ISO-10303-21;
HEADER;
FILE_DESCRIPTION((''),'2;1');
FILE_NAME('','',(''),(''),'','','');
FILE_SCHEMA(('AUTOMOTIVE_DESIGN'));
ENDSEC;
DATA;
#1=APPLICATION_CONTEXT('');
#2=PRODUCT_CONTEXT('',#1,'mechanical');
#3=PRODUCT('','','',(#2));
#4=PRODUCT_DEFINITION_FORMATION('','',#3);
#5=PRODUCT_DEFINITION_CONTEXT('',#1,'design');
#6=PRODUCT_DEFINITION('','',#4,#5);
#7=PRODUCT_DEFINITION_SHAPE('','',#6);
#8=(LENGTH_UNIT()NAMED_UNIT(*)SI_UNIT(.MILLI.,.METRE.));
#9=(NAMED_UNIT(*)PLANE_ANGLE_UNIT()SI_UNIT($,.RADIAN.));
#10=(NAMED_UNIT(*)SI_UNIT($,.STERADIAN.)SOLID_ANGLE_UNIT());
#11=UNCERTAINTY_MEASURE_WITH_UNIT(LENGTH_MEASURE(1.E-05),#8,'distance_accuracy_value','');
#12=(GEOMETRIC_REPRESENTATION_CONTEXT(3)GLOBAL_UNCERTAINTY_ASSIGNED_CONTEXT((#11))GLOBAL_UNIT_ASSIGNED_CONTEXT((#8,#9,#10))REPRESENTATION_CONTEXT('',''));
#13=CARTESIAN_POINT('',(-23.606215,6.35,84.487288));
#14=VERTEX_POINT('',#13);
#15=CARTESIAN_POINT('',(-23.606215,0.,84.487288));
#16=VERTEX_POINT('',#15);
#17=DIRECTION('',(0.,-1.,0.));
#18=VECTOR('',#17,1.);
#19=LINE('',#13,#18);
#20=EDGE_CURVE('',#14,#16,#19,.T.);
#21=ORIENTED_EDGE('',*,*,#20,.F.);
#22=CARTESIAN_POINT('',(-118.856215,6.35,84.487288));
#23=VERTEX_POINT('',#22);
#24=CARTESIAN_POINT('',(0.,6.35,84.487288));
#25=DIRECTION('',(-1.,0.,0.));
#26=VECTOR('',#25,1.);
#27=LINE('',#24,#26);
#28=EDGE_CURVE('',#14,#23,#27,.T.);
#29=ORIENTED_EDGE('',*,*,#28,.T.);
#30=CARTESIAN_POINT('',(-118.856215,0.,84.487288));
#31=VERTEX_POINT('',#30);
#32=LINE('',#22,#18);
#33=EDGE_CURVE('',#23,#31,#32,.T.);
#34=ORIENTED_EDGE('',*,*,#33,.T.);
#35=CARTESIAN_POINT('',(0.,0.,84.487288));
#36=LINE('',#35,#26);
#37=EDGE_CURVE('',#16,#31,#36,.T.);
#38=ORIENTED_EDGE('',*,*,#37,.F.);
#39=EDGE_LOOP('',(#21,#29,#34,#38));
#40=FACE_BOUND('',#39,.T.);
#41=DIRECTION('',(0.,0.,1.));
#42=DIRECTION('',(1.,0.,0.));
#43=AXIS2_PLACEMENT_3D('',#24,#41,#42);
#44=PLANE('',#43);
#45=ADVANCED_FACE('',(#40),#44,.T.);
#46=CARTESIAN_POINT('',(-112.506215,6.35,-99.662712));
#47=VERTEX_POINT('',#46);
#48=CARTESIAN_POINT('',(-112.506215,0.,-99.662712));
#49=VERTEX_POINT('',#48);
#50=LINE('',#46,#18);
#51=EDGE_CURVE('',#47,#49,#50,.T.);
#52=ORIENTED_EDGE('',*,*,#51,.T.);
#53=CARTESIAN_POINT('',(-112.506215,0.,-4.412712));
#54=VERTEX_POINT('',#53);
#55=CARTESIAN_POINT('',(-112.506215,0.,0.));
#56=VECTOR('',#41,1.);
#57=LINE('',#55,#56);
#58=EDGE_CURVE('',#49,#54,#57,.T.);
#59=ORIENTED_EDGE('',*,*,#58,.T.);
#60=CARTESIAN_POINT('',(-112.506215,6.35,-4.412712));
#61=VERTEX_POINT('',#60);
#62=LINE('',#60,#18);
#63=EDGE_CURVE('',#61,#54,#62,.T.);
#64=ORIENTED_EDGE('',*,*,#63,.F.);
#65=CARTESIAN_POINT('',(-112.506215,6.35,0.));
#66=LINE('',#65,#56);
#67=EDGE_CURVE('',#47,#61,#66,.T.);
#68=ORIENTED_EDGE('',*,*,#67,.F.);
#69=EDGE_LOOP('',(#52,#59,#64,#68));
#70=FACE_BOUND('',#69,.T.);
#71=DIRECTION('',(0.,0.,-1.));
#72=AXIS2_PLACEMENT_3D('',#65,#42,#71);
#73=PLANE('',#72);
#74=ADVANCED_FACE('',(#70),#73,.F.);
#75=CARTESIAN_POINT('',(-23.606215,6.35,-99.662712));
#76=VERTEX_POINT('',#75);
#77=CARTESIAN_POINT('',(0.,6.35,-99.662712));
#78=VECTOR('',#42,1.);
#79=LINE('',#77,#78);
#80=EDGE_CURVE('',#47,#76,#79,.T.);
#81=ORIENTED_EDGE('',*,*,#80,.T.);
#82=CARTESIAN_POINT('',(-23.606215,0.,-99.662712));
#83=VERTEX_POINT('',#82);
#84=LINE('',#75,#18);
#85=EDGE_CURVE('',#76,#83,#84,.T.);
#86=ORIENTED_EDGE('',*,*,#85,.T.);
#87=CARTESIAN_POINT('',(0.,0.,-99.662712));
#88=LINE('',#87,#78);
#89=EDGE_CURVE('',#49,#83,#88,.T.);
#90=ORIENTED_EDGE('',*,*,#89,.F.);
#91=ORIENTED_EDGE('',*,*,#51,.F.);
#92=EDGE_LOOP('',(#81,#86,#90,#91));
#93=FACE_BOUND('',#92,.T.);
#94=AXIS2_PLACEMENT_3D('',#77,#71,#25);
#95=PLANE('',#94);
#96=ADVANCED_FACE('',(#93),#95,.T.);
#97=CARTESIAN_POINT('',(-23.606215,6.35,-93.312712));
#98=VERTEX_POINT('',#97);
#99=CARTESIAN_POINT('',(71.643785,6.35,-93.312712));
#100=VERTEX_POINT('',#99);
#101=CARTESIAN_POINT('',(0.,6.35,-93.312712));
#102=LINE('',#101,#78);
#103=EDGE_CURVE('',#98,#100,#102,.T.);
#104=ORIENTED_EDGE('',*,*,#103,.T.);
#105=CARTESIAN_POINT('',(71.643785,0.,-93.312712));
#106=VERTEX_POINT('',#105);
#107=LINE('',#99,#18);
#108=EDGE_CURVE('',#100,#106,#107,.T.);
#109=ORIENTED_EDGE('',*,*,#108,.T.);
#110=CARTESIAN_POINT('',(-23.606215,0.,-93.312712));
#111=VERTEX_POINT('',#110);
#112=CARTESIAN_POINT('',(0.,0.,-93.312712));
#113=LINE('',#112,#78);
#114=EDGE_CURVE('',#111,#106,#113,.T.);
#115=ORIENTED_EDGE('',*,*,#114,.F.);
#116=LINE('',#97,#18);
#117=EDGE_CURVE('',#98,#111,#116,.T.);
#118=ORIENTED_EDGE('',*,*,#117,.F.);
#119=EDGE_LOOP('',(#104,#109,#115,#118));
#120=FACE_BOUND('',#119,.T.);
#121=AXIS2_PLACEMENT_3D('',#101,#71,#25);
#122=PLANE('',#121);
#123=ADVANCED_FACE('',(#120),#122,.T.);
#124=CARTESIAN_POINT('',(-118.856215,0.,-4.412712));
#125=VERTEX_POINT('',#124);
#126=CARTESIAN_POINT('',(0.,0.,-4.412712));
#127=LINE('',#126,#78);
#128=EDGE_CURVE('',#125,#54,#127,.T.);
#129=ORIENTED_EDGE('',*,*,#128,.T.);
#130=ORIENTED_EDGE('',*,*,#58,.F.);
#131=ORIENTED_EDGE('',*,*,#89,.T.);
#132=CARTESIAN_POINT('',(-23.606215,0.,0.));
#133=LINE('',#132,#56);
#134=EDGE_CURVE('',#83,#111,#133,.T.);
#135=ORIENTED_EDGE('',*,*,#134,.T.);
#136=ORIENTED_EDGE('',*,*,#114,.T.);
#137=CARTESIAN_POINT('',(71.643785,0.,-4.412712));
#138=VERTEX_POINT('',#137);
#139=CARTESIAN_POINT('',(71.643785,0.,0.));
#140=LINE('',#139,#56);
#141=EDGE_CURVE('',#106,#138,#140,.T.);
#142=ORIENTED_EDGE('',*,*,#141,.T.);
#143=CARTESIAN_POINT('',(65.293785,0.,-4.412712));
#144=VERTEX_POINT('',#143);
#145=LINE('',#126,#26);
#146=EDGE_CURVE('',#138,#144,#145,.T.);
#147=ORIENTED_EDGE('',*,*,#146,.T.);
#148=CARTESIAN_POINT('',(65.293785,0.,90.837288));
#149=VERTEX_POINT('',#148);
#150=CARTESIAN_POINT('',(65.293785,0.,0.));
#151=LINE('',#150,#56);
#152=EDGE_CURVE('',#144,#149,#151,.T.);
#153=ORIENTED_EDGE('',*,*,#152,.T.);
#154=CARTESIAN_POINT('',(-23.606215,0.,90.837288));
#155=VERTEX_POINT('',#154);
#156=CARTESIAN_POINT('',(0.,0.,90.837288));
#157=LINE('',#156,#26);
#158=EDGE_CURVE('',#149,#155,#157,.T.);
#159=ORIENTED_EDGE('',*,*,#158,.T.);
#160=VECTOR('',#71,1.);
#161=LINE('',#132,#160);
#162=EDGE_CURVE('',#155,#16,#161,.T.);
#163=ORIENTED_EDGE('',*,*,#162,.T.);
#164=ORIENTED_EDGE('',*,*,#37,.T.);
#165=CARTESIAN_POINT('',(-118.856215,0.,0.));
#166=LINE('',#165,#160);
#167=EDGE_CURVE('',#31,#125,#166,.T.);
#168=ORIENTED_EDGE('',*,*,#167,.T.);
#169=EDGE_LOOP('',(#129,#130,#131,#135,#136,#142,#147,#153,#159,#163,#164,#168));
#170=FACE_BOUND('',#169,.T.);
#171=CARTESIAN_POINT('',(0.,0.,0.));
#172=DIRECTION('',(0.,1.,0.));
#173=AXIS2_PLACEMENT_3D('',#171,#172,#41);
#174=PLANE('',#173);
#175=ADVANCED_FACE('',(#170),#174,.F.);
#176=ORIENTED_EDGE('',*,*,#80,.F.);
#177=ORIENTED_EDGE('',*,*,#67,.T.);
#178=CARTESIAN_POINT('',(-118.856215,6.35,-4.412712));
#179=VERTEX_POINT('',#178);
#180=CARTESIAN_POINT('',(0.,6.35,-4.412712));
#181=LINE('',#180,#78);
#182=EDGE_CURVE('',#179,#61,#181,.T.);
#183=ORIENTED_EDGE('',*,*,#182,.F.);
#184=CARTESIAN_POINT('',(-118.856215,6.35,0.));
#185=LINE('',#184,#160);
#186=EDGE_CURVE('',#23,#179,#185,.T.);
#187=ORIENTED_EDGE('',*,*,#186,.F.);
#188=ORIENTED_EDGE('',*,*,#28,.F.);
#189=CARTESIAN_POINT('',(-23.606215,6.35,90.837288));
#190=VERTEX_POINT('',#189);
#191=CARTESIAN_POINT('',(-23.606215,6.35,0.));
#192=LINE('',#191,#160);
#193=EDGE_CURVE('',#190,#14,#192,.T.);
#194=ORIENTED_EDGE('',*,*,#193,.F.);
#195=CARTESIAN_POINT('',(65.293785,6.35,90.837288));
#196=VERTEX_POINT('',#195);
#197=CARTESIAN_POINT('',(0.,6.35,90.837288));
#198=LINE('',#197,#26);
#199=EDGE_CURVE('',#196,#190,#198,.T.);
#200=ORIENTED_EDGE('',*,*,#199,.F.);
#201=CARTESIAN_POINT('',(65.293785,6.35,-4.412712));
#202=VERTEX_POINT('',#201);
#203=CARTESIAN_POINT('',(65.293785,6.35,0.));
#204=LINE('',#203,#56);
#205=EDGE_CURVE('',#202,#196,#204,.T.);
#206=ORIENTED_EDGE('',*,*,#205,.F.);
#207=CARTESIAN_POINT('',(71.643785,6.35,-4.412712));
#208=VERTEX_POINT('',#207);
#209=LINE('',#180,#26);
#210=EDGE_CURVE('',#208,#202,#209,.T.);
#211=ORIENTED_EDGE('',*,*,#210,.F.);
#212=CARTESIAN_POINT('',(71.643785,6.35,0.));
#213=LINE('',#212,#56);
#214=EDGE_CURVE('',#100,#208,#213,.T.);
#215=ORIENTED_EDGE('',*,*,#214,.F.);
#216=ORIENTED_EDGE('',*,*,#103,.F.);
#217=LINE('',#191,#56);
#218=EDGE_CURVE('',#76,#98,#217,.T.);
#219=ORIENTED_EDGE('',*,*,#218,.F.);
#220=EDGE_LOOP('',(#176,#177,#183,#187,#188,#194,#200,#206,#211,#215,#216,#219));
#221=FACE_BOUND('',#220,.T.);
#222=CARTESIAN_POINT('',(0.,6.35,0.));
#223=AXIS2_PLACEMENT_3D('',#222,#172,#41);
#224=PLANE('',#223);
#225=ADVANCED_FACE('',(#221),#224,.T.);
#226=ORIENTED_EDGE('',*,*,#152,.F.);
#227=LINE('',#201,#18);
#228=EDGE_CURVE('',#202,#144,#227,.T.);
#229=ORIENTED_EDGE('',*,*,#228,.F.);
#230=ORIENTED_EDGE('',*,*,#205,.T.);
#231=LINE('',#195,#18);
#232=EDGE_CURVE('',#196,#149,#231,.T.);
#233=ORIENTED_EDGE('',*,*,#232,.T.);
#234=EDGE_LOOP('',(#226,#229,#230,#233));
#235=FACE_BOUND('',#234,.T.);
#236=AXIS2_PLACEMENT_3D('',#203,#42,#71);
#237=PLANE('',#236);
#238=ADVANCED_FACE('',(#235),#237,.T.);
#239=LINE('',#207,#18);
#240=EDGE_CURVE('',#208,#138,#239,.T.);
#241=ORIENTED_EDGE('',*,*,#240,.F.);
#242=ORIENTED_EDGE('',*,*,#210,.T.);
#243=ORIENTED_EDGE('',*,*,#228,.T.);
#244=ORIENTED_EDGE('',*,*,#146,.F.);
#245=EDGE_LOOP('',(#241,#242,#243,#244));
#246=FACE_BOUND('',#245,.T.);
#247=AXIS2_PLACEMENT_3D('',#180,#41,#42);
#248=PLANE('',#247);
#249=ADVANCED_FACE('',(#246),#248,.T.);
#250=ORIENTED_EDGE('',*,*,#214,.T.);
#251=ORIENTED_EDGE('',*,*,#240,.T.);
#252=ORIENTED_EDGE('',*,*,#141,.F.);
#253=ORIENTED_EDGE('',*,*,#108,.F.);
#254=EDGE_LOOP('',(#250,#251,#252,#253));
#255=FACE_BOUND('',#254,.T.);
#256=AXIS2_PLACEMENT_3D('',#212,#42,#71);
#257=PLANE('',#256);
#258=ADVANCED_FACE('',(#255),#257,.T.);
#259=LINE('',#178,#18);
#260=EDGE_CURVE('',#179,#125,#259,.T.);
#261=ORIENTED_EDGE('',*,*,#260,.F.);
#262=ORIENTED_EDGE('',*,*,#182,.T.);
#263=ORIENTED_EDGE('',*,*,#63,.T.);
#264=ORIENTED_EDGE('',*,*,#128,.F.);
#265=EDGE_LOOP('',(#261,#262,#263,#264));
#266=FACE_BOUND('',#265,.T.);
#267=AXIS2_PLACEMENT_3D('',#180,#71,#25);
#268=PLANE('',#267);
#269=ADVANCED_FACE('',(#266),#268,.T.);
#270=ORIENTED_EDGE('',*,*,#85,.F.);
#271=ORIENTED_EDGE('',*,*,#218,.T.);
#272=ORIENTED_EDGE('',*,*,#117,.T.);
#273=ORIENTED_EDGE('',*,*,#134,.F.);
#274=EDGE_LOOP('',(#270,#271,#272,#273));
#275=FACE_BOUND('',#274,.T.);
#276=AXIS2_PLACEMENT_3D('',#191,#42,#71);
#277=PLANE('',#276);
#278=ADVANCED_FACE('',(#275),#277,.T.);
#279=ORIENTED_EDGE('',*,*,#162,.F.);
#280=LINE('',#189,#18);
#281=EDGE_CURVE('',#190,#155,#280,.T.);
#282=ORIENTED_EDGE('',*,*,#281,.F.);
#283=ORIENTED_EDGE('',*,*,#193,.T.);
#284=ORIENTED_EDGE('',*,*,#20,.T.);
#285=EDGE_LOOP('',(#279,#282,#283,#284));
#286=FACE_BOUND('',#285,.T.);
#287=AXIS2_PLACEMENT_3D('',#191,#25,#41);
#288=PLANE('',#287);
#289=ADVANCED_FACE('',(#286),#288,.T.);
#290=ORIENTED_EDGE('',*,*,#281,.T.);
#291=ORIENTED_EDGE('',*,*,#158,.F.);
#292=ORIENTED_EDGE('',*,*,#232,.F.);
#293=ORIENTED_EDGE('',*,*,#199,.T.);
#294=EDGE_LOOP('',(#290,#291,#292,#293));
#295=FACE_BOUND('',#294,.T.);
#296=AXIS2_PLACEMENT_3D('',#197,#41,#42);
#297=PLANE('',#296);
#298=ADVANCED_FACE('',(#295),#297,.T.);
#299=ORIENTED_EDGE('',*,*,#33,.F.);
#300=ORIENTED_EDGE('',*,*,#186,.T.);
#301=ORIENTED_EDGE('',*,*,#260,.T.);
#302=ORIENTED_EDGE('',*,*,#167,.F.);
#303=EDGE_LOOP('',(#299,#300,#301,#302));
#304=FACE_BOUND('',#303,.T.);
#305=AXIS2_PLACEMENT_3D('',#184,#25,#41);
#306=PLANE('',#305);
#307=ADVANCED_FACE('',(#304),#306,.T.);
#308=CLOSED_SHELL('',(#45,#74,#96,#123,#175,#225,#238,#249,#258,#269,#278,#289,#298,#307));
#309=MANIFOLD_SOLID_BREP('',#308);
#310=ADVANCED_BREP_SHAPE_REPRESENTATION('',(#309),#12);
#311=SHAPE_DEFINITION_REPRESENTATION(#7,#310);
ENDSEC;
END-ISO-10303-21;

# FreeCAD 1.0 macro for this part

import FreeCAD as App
import Part
import Sketcher
from FreeCAD import Vector
Q = App.Units.Quantity

doc = App.newDocument("Part")
body = doc.addObject("PartDesign::Body", "Body")

sketch1 = body.newObject("Sketcher::SketchObject", "Sketch")
sketch1.AttachmentSupport = (doc.getObject("XZ_Plane"), [""])
sketch1.MapMode = "FlatFace"
sketch1.addGeometry(Part.LineSegment(Vector(-118.856215, -4.412712, 0), Vector(-118.856215, 84.487288, 0)), False)
sketch1.addGeometry(Part.LineSegment(Vector(-118.856215, 84.487288, 0), Vector(-23.606215, 84.487288, 0)), False)
sketch1.addGeometry(Part.LineSegment(Vector(-23.606215, 84.487288, 0), Vector(-23.606215, 90.837288, 0)), False)
sketch1.addGeometry(Part.LineSegment(Vector(-23.606215, 90.837288, 0), Vector(65.293785, 90.837288, 0)), False)
sketch1.addGeometry(Part.LineSegment(Vector(65.293785, 90.837288, 0), Vector(65.293785, -4.412712, 0)), False)
sketch1.addGeometry(Part.LineSegment(Vector(65.293785, -4.412712, 0), Vector(71.643785, -4.412712, 0)), False)
sketch1.addGeometry(Part.LineSegment(Vector(71.643785, -4.412712, 0), Vector(71.643785, -93.312712, 0)), False)
sketch1.addGeometry(Part.LineSegment(Vector(71.643785, -93.312712, 0), Vector(-23.606215, -93.312712, 0)), False)
sketch1.addGeometry(Part.LineSegment(Vector(-23.606215, -93.312712, 0), Vector(-23.606215, -99.662712, 0)), False)
sketch1.addGeometry(Part.LineSegment(Vector(-23.606215, -99.662712, 0), Vector(-112.506215, -99.662712, 0)), False)
sketch1.addGeometry(Part.LineSegment(Vector(-112.506215, -99.662712, 0), Vector(-112.506215, -4.412712, 0)), False)
sketch1.addGeometry(Part.LineSegment(Vector(-112.506215, -4.412712, 0), Vector(-118.856215, -4.412712, 0)), False)
sketch1.addConstraint(Sketcher.Constraint("Coincident", 0, 2, 1, 1))
sketch1.addConstraint(Sketcher.Constraint("Coincident", 1, 2, 2, 1))
sketch1.addConstraint(Sketcher.Constraint("Coincident", 2, 2, 3, 1))
sketch1.addConstraint(Sketcher.Constraint("Coincident", 3, 2, 4, 1))
sketch1.addConstraint(Sketcher.Constraint("Coincident", 4, 2, 5, 1))
sketch1.addConstraint(Sketcher.Constraint("Coincident", 5, 2, 6, 1))
sketch1.addConstraint(Sketcher.Constraint("Coincident", 6, 2, 7, 1))
sketch1.addConstraint(Sketcher.Constraint("Coincident", 7, 2, 8, 1))
sketch1.addConstraint(Sketcher.Constraint("Coincident", 8, 2, 9, 1))
sketch1.addConstraint(Sketcher.Constraint("Coincident", 9, 2, 10, 1))
sketch1.addConstraint(Sketcher.Constraint("Coincident", 10, 2, 11, 1))
sketch1.addConstraint(Sketcher.Constraint("Coincident", 11, 2, 0, 1))
sketch1.addConstraint(Sketcher.Constraint("Vertical", 0))
sketch1.addConstraint(Sketcher.Constraint("Horizontal", 1))
sketch1.addConstraint(Sketcher.Constraint("Vertical", 2))
sketch1.addConstraint(Sketcher.Constraint("Horizontal", 3))
sketch1.addConstraint(Sketcher.Constraint("Vertical", 4))
sketch1.addConstraint(Sketcher.Constraint("Horizontal", 5))
sketch1.addConstraint(Sketcher.Constraint("Vertical", 6))
sketch1.addConstraint(Sketcher.Constraint("Horizontal", 7))
sketch1.addConstraint(Sketcher.Constraint("Vertical", 8))
sketch1.addConstraint(Sketcher.Constraint("Horizontal", 9))
sketch1.addConstraint(Sketcher.Constraint("Vertical", 10))
sketch1.addConstraint(Sketcher.Constraint("Horizontal", 11))
sketch1.addConstraint(Sketcher.Constraint("Horizontal", 5, 2, 10, 2))
sketch1.addConstraint(Sketcher.Constraint("Vertical", 2, 2, 7, 2))
sketch1.addConstraint(Sketcher.Constraint("Equal", 1, 7))
sketch1.addConstraint(Sketcher.Constraint("Equal", 3, 9))
sketch1.addConstraint(Sketcher.Constraint("Equal", 9, 0))
sketch1.addConstraint(Sketcher.Constraint("Equal", 11, 2))
sketch1.addConstraint(Sketcher.Constraint("Equal", 0, 6))
sketch1.addConstraint(Sketcher.Constraint("Equal", 2, 8))
sketch1.addConstraint(Sketcher.Constraint("DistanceX", 3, 1, 3, 2, Q("3.5 in")))
sketch1.addConstraint(Sketcher.Constraint("DistanceX", 1, 1, 1, 2, Q("3.75 in")))
sketch1.addConstraint(Sketcher.Constraint("DistanceY", -1, 1, 0, 2, Q("84.487288 mm")))
sketch1.addConstraint(Sketcher.Constraint("DistanceX", 0, 2, -1, 1, Q("118.856215 mm")))
pad1 = body.newObject("PartDesign::Pad", "Pad")
pad1.Profile = sketch1
pad1.Length = Q("0.25 in")
pad1.Reversed = True

doc.recompute()
